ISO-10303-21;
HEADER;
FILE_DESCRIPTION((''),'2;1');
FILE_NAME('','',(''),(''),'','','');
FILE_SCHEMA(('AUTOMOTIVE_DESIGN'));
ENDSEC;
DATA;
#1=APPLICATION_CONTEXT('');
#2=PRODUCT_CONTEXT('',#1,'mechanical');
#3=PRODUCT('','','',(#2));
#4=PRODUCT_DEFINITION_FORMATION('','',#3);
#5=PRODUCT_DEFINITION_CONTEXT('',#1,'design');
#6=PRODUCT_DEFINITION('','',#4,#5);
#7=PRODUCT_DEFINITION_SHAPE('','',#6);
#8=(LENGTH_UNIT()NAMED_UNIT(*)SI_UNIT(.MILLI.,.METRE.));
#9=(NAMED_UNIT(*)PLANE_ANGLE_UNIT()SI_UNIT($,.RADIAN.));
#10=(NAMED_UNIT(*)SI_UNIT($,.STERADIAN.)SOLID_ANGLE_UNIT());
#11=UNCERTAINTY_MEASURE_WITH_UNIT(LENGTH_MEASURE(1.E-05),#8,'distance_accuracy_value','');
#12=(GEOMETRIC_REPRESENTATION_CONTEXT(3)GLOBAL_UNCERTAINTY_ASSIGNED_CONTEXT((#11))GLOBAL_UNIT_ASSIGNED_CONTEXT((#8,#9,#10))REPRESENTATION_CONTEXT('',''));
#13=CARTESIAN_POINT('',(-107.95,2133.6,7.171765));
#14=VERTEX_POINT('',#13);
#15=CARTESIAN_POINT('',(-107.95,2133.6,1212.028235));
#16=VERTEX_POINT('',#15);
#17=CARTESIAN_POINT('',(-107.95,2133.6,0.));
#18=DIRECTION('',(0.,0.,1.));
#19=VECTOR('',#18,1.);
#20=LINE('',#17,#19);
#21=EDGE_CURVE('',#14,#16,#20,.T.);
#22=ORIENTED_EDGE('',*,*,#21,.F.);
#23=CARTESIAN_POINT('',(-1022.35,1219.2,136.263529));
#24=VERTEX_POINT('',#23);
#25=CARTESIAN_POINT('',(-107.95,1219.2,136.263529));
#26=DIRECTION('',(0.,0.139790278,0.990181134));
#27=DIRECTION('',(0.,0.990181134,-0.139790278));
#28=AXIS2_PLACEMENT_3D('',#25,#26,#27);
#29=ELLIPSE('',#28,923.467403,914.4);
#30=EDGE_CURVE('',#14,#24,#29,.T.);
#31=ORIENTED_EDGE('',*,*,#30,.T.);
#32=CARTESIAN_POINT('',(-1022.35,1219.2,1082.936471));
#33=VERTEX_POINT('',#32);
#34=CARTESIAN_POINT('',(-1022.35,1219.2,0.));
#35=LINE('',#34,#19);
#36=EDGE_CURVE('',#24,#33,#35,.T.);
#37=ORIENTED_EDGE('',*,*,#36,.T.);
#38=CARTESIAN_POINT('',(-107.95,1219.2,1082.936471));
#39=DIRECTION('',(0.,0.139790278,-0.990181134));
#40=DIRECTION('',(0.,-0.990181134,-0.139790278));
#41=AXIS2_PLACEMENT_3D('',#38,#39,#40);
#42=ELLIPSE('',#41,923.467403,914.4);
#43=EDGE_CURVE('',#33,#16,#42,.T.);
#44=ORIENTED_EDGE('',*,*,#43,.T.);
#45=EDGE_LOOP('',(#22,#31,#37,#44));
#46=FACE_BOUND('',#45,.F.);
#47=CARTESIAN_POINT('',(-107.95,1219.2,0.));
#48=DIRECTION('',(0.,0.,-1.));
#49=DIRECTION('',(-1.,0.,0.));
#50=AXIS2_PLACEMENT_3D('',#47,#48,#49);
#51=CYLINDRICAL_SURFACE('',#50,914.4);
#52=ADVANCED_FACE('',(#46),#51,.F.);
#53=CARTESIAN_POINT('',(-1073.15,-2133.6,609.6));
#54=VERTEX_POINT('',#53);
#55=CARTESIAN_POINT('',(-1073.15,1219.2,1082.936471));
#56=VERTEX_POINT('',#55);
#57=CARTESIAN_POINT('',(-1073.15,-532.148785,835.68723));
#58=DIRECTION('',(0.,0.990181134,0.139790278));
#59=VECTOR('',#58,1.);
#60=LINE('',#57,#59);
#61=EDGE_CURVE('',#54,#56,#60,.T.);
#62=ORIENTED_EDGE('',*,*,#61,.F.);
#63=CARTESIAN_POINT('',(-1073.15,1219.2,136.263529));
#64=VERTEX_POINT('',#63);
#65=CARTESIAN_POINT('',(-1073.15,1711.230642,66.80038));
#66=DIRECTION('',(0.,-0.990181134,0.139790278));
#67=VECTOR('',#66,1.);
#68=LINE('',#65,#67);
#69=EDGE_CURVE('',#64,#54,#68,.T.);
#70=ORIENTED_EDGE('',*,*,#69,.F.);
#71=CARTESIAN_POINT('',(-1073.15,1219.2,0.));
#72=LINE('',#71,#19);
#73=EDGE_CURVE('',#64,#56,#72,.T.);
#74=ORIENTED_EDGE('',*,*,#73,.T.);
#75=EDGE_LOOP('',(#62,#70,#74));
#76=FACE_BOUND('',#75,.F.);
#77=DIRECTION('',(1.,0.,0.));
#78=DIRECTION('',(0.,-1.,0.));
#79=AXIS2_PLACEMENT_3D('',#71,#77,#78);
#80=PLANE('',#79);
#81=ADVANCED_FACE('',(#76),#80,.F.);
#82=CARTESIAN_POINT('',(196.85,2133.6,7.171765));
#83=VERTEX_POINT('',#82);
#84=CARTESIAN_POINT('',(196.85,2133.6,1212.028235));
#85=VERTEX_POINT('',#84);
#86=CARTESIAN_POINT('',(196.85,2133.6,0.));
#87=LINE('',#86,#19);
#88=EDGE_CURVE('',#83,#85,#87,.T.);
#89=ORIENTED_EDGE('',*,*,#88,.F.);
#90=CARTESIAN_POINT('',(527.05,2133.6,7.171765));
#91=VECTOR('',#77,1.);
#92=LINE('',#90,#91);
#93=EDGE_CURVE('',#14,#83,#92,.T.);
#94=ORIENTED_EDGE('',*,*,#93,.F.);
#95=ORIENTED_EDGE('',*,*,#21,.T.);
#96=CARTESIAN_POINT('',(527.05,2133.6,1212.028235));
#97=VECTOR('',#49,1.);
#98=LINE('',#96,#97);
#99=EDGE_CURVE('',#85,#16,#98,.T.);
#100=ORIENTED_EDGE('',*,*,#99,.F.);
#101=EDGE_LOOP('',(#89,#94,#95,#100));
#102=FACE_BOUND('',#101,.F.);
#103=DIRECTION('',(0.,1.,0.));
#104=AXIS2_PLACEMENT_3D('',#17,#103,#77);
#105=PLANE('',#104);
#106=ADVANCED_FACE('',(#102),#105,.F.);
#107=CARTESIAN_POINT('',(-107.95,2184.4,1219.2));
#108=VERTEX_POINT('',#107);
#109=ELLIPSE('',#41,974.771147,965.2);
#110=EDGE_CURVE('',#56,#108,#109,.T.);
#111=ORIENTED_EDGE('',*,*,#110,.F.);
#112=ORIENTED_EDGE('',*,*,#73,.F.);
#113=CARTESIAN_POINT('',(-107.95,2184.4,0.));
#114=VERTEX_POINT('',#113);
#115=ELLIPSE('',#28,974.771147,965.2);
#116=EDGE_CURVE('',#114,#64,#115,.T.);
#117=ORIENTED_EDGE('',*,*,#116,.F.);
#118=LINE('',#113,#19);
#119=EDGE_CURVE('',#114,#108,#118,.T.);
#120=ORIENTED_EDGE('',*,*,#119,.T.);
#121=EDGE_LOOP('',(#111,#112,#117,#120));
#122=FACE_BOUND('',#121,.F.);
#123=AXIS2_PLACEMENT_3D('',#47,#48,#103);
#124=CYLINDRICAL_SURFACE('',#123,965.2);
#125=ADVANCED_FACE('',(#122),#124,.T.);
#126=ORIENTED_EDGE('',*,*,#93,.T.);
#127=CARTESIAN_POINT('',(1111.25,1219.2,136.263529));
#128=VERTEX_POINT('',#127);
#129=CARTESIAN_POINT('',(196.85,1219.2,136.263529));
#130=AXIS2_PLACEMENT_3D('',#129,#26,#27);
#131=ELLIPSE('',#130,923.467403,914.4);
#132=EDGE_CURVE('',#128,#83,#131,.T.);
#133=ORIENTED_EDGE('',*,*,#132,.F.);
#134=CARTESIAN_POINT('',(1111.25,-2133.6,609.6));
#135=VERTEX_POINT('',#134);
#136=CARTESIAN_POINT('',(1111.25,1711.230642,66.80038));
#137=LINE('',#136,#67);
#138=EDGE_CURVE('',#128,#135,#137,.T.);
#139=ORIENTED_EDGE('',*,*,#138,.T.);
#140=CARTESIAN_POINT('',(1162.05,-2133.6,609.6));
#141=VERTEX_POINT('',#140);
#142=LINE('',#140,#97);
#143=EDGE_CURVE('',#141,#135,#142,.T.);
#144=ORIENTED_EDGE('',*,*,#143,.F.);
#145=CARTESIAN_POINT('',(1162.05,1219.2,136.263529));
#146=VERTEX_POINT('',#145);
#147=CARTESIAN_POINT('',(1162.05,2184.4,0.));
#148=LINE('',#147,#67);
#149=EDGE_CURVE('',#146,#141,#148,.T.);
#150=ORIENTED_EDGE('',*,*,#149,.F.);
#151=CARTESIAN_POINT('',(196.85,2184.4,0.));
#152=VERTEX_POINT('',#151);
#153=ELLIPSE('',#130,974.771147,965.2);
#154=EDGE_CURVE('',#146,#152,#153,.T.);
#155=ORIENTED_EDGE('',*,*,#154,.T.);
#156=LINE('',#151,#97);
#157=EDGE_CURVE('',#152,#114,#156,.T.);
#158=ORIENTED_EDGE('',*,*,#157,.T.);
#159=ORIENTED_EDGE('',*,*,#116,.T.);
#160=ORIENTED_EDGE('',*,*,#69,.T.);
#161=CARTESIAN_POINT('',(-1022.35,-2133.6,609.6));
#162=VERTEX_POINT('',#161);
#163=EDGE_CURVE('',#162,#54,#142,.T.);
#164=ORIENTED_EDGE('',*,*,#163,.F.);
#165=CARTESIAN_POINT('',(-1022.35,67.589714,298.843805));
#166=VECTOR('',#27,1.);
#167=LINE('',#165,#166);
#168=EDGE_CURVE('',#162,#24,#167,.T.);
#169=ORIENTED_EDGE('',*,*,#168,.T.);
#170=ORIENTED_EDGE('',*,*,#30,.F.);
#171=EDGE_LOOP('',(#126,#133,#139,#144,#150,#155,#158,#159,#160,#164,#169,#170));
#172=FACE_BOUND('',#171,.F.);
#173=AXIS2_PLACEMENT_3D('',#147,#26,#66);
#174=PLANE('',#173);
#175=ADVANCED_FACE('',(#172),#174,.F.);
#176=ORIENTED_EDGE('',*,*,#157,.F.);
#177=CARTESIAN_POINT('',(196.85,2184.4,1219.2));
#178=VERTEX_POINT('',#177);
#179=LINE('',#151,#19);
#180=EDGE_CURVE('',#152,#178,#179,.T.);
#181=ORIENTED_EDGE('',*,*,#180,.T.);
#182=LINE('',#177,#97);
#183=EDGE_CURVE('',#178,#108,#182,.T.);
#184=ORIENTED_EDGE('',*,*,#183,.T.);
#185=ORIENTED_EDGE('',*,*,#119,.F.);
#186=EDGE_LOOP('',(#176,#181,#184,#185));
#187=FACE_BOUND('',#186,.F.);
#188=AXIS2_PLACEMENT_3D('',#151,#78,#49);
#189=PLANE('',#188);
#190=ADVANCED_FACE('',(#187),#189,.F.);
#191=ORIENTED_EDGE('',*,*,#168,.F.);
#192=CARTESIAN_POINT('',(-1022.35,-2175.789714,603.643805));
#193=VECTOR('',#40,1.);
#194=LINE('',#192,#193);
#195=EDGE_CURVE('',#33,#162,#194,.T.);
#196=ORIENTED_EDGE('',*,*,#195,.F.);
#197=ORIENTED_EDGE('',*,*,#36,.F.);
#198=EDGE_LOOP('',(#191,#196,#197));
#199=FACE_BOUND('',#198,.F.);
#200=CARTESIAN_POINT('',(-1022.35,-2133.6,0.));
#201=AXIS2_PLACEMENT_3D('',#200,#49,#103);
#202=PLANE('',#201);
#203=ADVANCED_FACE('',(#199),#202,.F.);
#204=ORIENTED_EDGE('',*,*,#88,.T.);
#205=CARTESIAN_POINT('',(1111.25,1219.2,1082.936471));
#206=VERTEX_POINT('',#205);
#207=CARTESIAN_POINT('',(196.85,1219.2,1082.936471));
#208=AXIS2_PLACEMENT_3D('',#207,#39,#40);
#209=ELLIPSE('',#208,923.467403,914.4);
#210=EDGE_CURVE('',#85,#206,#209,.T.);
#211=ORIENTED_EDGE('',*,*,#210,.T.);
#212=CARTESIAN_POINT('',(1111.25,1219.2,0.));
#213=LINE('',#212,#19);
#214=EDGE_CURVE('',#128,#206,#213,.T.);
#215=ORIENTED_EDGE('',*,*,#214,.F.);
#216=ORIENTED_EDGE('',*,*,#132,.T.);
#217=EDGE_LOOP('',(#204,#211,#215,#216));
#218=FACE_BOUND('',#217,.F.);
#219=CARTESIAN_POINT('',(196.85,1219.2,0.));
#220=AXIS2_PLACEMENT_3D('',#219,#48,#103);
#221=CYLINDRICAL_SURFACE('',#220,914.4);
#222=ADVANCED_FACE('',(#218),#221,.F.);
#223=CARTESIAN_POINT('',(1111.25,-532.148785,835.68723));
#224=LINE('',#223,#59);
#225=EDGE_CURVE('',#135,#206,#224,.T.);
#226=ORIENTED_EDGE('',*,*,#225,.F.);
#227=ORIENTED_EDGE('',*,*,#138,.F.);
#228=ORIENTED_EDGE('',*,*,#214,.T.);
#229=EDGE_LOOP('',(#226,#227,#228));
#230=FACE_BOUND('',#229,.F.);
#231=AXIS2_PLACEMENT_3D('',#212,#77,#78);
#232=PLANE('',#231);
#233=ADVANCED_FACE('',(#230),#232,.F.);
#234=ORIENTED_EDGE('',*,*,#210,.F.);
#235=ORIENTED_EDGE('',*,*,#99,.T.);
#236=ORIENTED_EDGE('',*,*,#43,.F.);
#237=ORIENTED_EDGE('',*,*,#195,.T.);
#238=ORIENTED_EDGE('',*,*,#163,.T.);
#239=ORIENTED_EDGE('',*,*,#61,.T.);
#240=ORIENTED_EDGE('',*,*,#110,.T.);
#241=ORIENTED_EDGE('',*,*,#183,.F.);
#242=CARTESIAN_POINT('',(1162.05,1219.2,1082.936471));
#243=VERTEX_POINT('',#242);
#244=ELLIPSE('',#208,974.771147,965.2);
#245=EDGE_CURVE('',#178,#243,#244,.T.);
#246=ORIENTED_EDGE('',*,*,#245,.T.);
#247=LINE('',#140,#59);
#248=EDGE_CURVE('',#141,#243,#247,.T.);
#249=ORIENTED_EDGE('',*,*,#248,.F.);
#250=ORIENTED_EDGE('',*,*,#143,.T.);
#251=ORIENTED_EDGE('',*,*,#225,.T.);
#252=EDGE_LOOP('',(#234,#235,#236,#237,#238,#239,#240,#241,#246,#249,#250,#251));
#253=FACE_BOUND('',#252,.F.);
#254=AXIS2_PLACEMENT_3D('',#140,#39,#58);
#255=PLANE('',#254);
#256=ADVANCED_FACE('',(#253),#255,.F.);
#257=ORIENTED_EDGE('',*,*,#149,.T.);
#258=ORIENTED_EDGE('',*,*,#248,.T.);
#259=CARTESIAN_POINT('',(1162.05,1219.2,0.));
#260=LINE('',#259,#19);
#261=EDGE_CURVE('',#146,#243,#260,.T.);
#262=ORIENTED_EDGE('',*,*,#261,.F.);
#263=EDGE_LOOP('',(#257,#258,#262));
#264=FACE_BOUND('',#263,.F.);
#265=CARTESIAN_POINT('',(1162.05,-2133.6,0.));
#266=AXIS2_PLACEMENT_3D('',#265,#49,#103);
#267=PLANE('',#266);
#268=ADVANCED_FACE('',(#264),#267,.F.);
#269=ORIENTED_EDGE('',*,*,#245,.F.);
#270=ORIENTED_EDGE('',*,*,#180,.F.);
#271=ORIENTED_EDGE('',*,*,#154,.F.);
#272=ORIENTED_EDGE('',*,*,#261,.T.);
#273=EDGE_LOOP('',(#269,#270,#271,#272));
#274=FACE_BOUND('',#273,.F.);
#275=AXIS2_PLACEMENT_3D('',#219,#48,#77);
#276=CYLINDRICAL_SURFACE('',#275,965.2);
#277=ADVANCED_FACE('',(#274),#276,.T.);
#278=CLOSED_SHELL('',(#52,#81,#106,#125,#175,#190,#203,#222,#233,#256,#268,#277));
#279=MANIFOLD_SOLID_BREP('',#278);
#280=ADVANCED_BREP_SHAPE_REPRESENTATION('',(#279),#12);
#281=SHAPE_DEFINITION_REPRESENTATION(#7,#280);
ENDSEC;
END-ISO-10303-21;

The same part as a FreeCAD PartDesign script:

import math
import FreeCAD as App
import Part
import Sketcher
Q = App.Units.Quantity


def add_polygon(sketch, points):
    """Adds a closed chain of lines whose ends are joined by coincident constraints."""
    first, n = sketch.GeometryCount, len(points)
    for a, b in zip(points, points[1:] + points[:1]):
        sketch.addGeometry(Part.LineSegment(App.Vector(*a, 0), App.Vector(*b, 0)), False)
    for i in range(n):
        sketch.addConstraint(Sketcher.Constraint("Coincident", first + i, 2, first + (i + 1) % n, 1))

doc = App.newDocument("Part")
body = doc.addObject("PartDesign::Body", "Body")

sketch1 = body.newObject("Sketcher::SketchObject", "Sketch")
sketch1.AttachmentSupport = (doc.getObject("XY_Plane"), [""])
sketch1.MapMode = "FlatFace"
sketch1.addGeometry(Part.ArcOfCircle(Part.Circle(App.Vector(-108, 1219, 0), App.Vector(0, 0, 1), 914), math.radians(90), math.radians(180)), False)
sketch1.addGeometry(Part.LineSegment(App.Vector(-108, 2134, 0), App.Vector(197, 2134, 0)), False)
sketch1.addGeometry(Part.ArcOfCircle(Part.Circle(App.Vector(197, 1219, 0), App.Vector(0, 0, 1), 914), math.radians(0), math.radians(90)), False)
sketch1.addGeometry(Part.LineSegment(App.Vector(1111, 1219, 0), App.Vector(1111, -2134, 0)), False)
sketch1.addGeometry(Part.LineSegment(App.Vector(1111, -2134, 0), App.Vector(1162, -2134, 0)), False)
sketch1.addGeometry(Part.LineSegment(App.Vector(1162, -2134, 0), App.Vector(1162, 1219, 0)), False)
sketch1.addGeometry(Part.ArcOfCircle(Part.Circle(App.Vector(197, 1219, 0), App.Vector(0, 0, 1), 965), math.radians(0), math.radians(90)), False)
sketch1.addGeometry(Part.LineSegment(App.Vector(197, 2184, 0), App.Vector(-108, 2184, 0)), False)
sketch1.addGeometry(Part.ArcOfCircle(Part.Circle(App.Vector(-108, 1219, 0), App.Vector(0, 0, 1), 965), math.radians(90), math.radians(180)), False)
sketch1.addGeometry(Part.LineSegment(App.Vector(-1073, 1219, 0), App.Vector(-1073, -2134, 0)), False)
sketch1.addGeometry(Part.LineSegment(App.Vector(-1073, -2134, 0), App.Vector(-1022, -2134, 0)), False)
sketch1.addGeometry(Part.LineSegment(App.Vector(-1022, -2134, 0), App.Vector(-1022, 1219, 0)), False)
sketch1.addConstraint(Sketcher.Constraint("Tangent", 0, 1, 1, 1))
sketch1.addConstraint(Sketcher.Constraint("Tangent", 1, 2, 2, 2))
sketch1.addConstraint(Sketcher.Constraint("Coincident", 2, 1, 3, 1))
sketch1.addConstraint(Sketcher.Constraint("Coincident", 3, 2, 4, 1))
sketch1.addConstraint(Sketcher.Constraint("Coincident", 4, 2, 5, 1))
sketch1.addConstraint(Sketcher.Constraint("Coincident", 5, 2, 6, 1))
sketch1.addConstraint(Sketcher.Constraint("Tangent", 6, 2, 7, 1))
sketch1.addConstraint(Sketcher.Constraint("Coincident", 7, 2, 8, 1))
sketch1.addConstraint(Sketcher.Constraint("Coincident", 8, 2, 9, 1))
sketch1.addConstraint(Sketcher.Constraint("Coincident", 9, 2, 10, 1))
sketch1.addConstraint(Sketcher.Constraint("Coincident", 10, 2, 11, 1))
sketch1.addConstraint(Sketcher.Constraint("Coincident", 11, 2, 0, 2))
sketch1.addConstraint(Sketcher.Constraint("Horizontal", 1))
sketch1.addConstraint(Sketcher.Constraint("Vertical", 3))
sketch1.addConstraint(Sketcher.Constraint("Horizontal", 4))
sketch1.addConstraint(Sketcher.Constraint("Vertical", 5))
sketch1.addConstraint(Sketcher.Constraint("Horizontal", 7))
sketch1.addConstraint(Sketcher.Constraint("Vertical", 9))
sketch1.addConstraint(Sketcher.Constraint("Horizontal", 10))
sketch1.addConstraint(Sketcher.Constraint("Vertical", 11))
sketch1.addConstraint(Sketcher.Constraint("Coincident", 6, 3, 2, 3))
sketch1.addConstraint(Sketcher.Constraint("Coincident", 8, 3, 0, 3))
sketch1.addConstraint(Sketcher.Constraint("Equal", 0, 2))
sketch1.addConstraint(Sketcher.Constraint("Horizontal", 4, 2, 9, 2))
sketch1.addConstraint(Sketcher.Constraint("Equal", 1, 7))
sketch1.addConstraint(Sketcher.Constraint("Equal", 3, 5))
sketch1.addConstraint(Sketcher.Constraint("Equal", 5, 9))
sketch1.addConstraint(Sketcher.Constraint("Equal", 9, 11))
sketch1.addConstraint(Sketcher.Constraint("Radius", 0, Q("36 in")))
sketch1.addConstraint(Sketcher.Constraint("Radius", 6, Q("38 in")))
sketch1.addConstraint(Sketcher.Constraint("DistanceX", 1, 1, 1, 2, Q("12 in")))
sketch1.addConstraint(Sketcher.Constraint("DistanceY", 3, 2, 3, 1, Q("132 in")))
sketch1.addConstraint(Sketcher.Constraint("DistanceY", -1, 1, 0, 3, Q("48 in")))
sketch1.addConstraint(Sketcher.Constraint("DistanceY", 3, 2, -1, 1, Q("84 in")))
sketch1.addConstraint(Sketcher.Constraint("DistanceX", 0, 3, -1, 1, Q("4.25 in")))
pad1 = body.newObject("PartDesign::Pad", "Pad")
pad1.Profile = sketch1
pad1.Length = Q("48 in")

sketch2 = body.newObject("Sketcher::SketchObject", "Sketch001")
sketch2.AttachmentSupport = (doc.getObject("YZ_Plane"), [""])
sketch2.MapMode = "FlatFace"
sketch2.AttachmentOffset = App.Placement(App.Vector(0, 0, 45.75 * 25.4), App.Rotation())
add_polygon(sketch2, [(-2134, 1219), (-2134, 610), (2184, 1219)])
add_polygon(sketch2, [(-2134, 610), (-2134, 0), (2184, 0)])
sketch2.addConstraint(Sketcher.Constraint("Vertical", 0))
sketch2.addConstraint(Sketcher.Constraint("Horizontal", 2))
sketch2.addConstraint(Sketcher.Constraint("Vertical", 3))
sketch2.addConstraint(Sketcher.Constraint("Horizontal", 4))
sketch2.addConstraint(Sketcher.Constraint("Coincident", 5, 2, 0, 2))
sketch2.addConstraint(Sketcher.Constraint("PointOnObject", 3, 2, -1))
sketch2.addConstraint(Sketcher.Constraint("Vertical", 1, 2, 4, 2))
sketch2.addConstraint(Sketcher.Constraint("Equal", 0, 3))
sketch2.addConstraint(Sketcher.Constraint("DistanceX", 2, 2, 2, 1, Q("170 in")))
sketch2.addConstraint(Sketcher.Constraint("DistanceY", 0, 2, 0, 1, Q("24 in")))
sketch2.addConstraint(Sketcher.Constraint("DistanceX", 0, 2, -1, 1, Q("84 in")))
pocket1 = body.newObject("PartDesign::Pocket", "Pocket")
pocket1.Profile = sketch2
pocket1.Type = "ThroughAll"

doc.recompute()
